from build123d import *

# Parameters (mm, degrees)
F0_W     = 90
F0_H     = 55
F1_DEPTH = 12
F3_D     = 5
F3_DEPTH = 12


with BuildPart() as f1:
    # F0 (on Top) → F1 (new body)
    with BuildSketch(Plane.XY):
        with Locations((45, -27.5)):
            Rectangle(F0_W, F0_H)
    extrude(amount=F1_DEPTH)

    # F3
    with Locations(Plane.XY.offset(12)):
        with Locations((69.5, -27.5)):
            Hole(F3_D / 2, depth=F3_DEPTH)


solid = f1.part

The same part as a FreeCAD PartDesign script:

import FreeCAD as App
import Part
import Sketcher
from FreeCAD import Vector


def add_polygon(sketch, points):
    """Adds a closed chain of lines whose ends are joined by coincident constraints."""
    first, n = sketch.GeometryCount, len(points)
    for a, b in zip(points, points[1:] + points[:1]):
        sketch.addGeometry(Part.LineSegment(App.Vector(*a, 0), App.Vector(*b, 0)), False)
    for i in range(n):
        sketch.addConstraint(Sketcher.Constraint("Coincident", first + i, 2, first + (i + 1) % n, 1))

doc = App.newDocument("Part")
body = doc.addObject("PartDesign::Body", "Body")

sketch1 = body.newObject("Sketcher::SketchObject", "Sketch")
sketch1.AttachmentSupport = (doc.getObject("XY_Plane"), [""])
sketch1.MapMode = "FlatFace"
add_polygon(sketch1, [(0, 0), (0, -55), (90, -55), (90, 0)])
sketch1.addConstraint([
    Sketcher.Constraint("Vertical", 0),
    Sketcher.Constraint("Horizontal", 1),
    Sketcher.Constraint("Vertical", 2),
    Sketcher.Constraint("Horizontal", 3),
    Sketcher.Constraint("Coincident", 3, 2, -1, 1),
    Sketcher.Constraint("DistanceX", 1, 1, 1, 2, 90.0),
    Sketcher.Constraint("DistanceY", 0, 2, 0, 1, 55.0),
])
pad1 = body.newObject("PartDesign::Pad", "Pad")
pad1.Profile = sketch1
pad1.Length = 12

sketch2 = body.newObject("Sketcher::SketchObject", "Sketch001")
sketch2.AttachmentSupport = (doc.getObject("XY_Plane"), [""])
sketch2.MapMode = "FlatFace"
sketch2.AttachmentOffset = App.Placement(Vector(0, 0, 12), App.Rotation())
sketch2.addGeometry(Part.Circle(Vector(69.5, -27.5, 0), Vector(0, 0, 1), 2.5), False)
sketch2.addConstraint([
    Sketcher.Constraint("Diameter", 0, 5.0),
    Sketcher.Constraint("DistanceX", -1, 1, 0, 3, 69.5),
    Sketcher.Constraint("DistanceY", 0, 3, -1, 1, 27.5),
])
doc.recompute()
hole = body.newObject("PartDesign::Hole", "Hole")
hole.Profile = sketch2
hole.ThreadType = "None"
hole.Diameter = 5
hole.DepthType = "Dimension"
hole.Depth = 12
hole.DrillPoint = "Flat"

doc.recompute()
